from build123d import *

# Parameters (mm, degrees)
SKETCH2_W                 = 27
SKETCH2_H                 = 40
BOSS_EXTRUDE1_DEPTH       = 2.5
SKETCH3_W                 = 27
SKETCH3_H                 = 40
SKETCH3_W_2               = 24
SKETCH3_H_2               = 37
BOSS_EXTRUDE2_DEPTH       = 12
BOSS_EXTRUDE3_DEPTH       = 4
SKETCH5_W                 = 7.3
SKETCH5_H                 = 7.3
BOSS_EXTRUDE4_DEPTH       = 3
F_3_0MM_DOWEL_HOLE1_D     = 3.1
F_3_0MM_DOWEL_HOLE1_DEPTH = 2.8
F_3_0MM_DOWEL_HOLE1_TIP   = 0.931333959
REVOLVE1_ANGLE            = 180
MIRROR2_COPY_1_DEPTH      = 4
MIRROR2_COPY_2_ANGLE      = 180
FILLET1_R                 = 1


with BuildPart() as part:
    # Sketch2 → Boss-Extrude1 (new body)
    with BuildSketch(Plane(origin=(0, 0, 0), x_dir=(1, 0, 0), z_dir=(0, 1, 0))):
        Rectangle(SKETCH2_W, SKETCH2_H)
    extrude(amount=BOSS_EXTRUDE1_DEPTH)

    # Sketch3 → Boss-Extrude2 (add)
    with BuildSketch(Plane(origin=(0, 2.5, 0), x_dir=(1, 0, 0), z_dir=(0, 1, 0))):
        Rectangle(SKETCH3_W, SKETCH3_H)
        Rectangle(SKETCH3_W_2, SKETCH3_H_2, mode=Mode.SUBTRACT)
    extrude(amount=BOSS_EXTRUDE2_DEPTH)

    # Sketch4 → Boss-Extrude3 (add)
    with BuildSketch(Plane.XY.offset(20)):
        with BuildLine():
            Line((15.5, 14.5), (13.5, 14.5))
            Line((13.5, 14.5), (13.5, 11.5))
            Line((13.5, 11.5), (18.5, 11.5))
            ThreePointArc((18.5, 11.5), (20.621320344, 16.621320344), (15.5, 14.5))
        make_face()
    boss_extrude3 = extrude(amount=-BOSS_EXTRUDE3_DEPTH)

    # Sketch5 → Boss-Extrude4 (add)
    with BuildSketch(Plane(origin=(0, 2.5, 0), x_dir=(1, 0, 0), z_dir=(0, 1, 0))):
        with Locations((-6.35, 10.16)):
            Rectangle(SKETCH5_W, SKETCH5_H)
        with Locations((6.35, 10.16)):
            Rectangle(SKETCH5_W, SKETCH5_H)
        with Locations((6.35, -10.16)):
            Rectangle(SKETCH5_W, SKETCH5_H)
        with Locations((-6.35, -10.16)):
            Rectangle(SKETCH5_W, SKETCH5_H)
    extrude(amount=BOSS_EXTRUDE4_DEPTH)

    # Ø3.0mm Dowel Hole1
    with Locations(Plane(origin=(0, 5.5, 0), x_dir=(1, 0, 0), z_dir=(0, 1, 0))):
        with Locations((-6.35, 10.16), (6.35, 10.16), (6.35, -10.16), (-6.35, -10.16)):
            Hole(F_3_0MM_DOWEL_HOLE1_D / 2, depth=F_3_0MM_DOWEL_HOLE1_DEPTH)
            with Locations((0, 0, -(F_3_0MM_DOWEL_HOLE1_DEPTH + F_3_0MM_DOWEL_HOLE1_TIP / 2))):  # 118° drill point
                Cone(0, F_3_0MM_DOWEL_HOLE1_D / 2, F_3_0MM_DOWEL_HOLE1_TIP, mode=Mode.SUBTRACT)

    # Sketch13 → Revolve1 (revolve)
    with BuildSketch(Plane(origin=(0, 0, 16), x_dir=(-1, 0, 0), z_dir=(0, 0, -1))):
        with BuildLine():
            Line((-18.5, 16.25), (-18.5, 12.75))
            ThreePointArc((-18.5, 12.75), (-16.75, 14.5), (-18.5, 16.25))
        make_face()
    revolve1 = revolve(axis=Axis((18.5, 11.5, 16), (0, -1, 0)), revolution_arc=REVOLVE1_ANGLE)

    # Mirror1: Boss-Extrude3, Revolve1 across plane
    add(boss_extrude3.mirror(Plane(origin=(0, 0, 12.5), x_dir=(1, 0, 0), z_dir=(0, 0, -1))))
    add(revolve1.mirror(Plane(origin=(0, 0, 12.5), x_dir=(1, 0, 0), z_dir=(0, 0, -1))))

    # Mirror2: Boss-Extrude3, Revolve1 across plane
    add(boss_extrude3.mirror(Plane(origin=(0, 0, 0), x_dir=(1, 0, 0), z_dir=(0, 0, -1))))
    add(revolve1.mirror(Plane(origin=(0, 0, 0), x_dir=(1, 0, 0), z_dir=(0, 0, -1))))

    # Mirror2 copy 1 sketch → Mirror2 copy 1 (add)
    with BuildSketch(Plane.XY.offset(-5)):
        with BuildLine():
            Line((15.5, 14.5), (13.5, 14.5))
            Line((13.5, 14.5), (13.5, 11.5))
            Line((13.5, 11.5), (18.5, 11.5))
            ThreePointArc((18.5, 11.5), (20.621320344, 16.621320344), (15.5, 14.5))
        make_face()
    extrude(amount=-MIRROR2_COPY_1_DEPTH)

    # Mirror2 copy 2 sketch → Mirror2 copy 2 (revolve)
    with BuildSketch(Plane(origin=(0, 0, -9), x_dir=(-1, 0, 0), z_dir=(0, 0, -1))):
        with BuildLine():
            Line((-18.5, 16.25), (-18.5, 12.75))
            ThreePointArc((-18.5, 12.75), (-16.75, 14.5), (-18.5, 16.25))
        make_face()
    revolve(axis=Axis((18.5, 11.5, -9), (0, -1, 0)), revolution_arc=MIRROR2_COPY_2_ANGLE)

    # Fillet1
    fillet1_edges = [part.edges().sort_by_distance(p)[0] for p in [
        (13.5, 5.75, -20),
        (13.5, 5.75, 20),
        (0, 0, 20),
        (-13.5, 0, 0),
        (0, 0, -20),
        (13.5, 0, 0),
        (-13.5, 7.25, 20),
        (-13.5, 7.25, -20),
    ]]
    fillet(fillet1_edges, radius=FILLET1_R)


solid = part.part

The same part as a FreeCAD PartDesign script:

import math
import FreeCAD as App
import Part
import Sketcher


def edges_at(feature, points):
    """Names of the edges that pass closest to the given points."""
    edges = feature.Shape.Edges
    near = lambda p: min(range(len(edges)), key=lambda i: edges[i].distToShape(Part.Vertex(*p))[0])
    return sorted({f"Edge{near(p) + 1}" for p in points})

doc = App.newDocument("Part")
body = doc.addObject("PartDesign::Body", "Body")

# Sketch on XZ plane
sketch1 = body.newObject("Sketcher::SketchObject", "Sketch")
sketch1.AttachmentSupport = (doc.getObject("XZ_Plane"), [""])
sketch1.MapMode = "FlatFace"
sketch1.addGeometry([
    Part.LineSegment(App.Vector(-14, -20, 0), App.Vector(-14, 20, 0)),
    Part.LineSegment(App.Vector(-14, 20, 0), App.Vector(14, 20, 0)),
    Part.LineSegment(App.Vector(14, 20, 0), App.Vector(14, -20, 0)),
    Part.LineSegment(App.Vector(14, -20, 0), App.Vector(-14, -20, 0)),
], False)
sketch1.addConstraint([
    Sketcher.Constraint("Coincident", 0, 2, 1, 1),
    Sketcher.Constraint("Coincident", 1, 2, 2, 1),
    Sketcher.Constraint("Coincident", 2, 2, 3, 1),
    Sketcher.Constraint("Coincident", 3, 2, 0, 1),
    Sketcher.Constraint("Vertical", 0),
    Sketcher.Constraint("Horizontal", 1),
    Sketcher.Constraint("Vertical", 2),
    Sketcher.Constraint("Horizontal", 3),
    Sketcher.Constraint("Symmetric", 0, 2, 2, 2, -1, 1),
    Sketcher.Constraint("DistanceX", 1, 1, 1, 2, 27.0),
    Sketcher.Constraint("DistanceY", 0, 1, 0, 2, 40.0),
])
pad1 = body.newObject("PartDesign::Pad", "Pad")
pad1.Profile = sketch1
pad1.Length = 2.5
pad1.Reversed = True

# Sketch on XZ plane
sketch2 = body.newObject("Sketcher::SketchObject", "Sketch001")
sketch2.AttachmentSupport = (doc.getObject("XZ_Plane"), [""])
sketch2.MapMode = "FlatFace"
sketch2.AttachmentOffset = App.Placement(App.Vector(0, 0, -2.5), App.Rotation())
sketch2.addGeometry([
    Part.LineSegment(App.Vector(-14, -20, 0), App.Vector(-14, 20, 0)),  # 0
    Part.LineSegment(App.Vector(-14, 20, 0), App.Vector(14, 20, 0)),  # 1
    Part.LineSegment(App.Vector(14, 20, 0), App.Vector(14, -20, 0)),  # 2
    Part.LineSegment(App.Vector(14, -20, 0), App.Vector(-14, -20, 0)),  # 3
    Part.LineSegment(App.Vector(12, 18, 0), App.Vector(-12, 18, 0)),  # 4
    Part.LineSegment(App.Vector(-12, 18, 0), App.Vector(-12, -18, 0)),  # 5
    Part.LineSegment(App.Vector(-12, -18, 0), App.Vector(12, -18, 0)),  # 6
    Part.LineSegment(App.Vector(12, -18, 0), App.Vector(12, 18, 0)),  # 7
], False)
sketch2.addConstraint([
    Sketcher.Constraint("Coincident", 0, 2, 1, 1),
    Sketcher.Constraint("Coincident", 1, 2, 2, 1),
    Sketcher.Constraint("Coincident", 2, 2, 3, 1),
    Sketcher.Constraint("Coincident", 3, 2, 0, 1),
    Sketcher.Constraint("Coincident", 4, 2, 5, 1),
    Sketcher.Constraint("Coincident", 5, 2, 6, 1),
    Sketcher.Constraint("Coincident", 6, 2, 7, 1),
    Sketcher.Constraint("Coincident", 7, 2, 4, 1),
    Sketcher.Constraint("Vertical", 0),
    Sketcher.Constraint("Horizontal", 1),
    Sketcher.Constraint("Vertical", 2),
    Sketcher.Constraint("Horizontal", 3),
    Sketcher.Constraint("Horizontal", 4),
    Sketcher.Constraint("Vertical", 5),
    Sketcher.Constraint("Horizontal", 6),
    Sketcher.Constraint("Vertical", 7),
    Sketcher.Constraint("Symmetric", 0, 2, 2, 2, -1, 1),
    Sketcher.Constraint("Symmetric", 4, 2, 6, 2, -1, 1),
    Sketcher.Constraint("DistanceX", 1, 1, 1, 2, 27.0),
    Sketcher.Constraint("DistanceX", 4, 2, 4, 1, 24.0),
    Sketcher.Constraint("DistanceY", 0, 1, 0, 2, 40.0),
    Sketcher.Constraint("DistanceY", 5, 2, 5, 1, 37.0),
])
pad2 = body.newObject("PartDesign::Pad", "Pad001")
pad2.Profile = sketch2
pad2.Length = 12
pad2.Reversed = True

# Sketch on XY plane
sketch3 = body.newObject("Sketcher::SketchObject", "Sketch002")
sketch3.AttachmentSupport = (doc.getObject("XY_Plane"), [""])
sketch3.MapMode = "FlatFace"
sketch3.AttachmentOffset = App.Placement(App.Vector(0, 0, 20), App.Rotation())
sketch3.addGeometry([
    Part.LineSegment(App.Vector(15.5, 14.5, 0), App.Vector(13.5, 14.5, 0)),
    Part.LineSegment(App.Vector(13.5, 14.5, 0), App.Vector(13.5, 11.5, 0)),
    Part.LineSegment(App.Vector(13.5, 11.5, 0), App.Vector(18.5, 11.5, 0)),
    Part.ArcOfCircle(Part.Circle(App.Vector(18.5, 14.5, 0), App.Vector(0, 0, 1), 3), math.radians(-90), math.radians(180)),
], False)
sketch3.addConstraint([
    Sketcher.Constraint("Coincident", 0, 2, 1, 1),
    Sketcher.Constraint("Coincident", 1, 2, 2, 1),
    Sketcher.Constraint("Tangent", 2, 2, 3, 1),
    Sketcher.Constraint("Coincident", 3, 2, 0, 1),
    Sketcher.Constraint("Horizontal", 0),
    Sketcher.Constraint("Vertical", 1),
    Sketcher.Constraint("Horizontal", 2),
    Sketcher.Constraint("Horizontal", 3, 3, 0, 2),
    Sketcher.Constraint("Radius", 3, 3.0),
    Sketcher.Constraint("DistanceX", 0, 2, 0, 1, 2.0),
    Sketcher.Constraint("DistanceX", -1, 1, 3, 3, 18.5),
    Sketcher.Constraint("DistanceY", -1, 1, 3, 3, 14.5),
])
pad3 = body.newObject("PartDesign::Pad", "Pad002")
pad3.Profile = sketch3
pad3.Length = 4
pad3.Reversed = True

# Sketch on XZ plane
sketch4 = body.newObject("Sketcher::SketchObject", "Sketch003")
sketch4.AttachmentSupport = (doc.getObject("XZ_Plane"), [""])
sketch4.MapMode = "FlatFace"
sketch4.AttachmentOffset = App.Placement(App.Vector(0, 0, -2.5), App.Rotation())
sketch4.addGeometry([
    Part.LineSegment(App.Vector(-10, -14, 0), App.Vector(-10, -7, 0)),  # 0
    Part.LineSegment(App.Vector(-10, -7, 0), App.Vector(-3, -7, 0)),  # 1
    Part.LineSegment(App.Vector(-3, -7, 0), App.Vector(-3, -14, 0)),  # 2
    Part.LineSegment(App.Vector(-3, -14, 0), App.Vector(-10, -14, 0)),  # 3
    Part.LineSegment(App.Vector(3, -14, 0), App.Vector(3, -7, 0)),  # 4
    Part.LineSegment(App.Vector(3, -7, 0), App.Vector(10, -7, 0)),  # 5
    Part.LineSegment(App.Vector(10, -7, 0), App.Vector(10, -14, 0)),  # 6
    Part.LineSegment(App.Vector(10, -14, 0), App.Vector(3, -14, 0)),  # 7
    Part.LineSegment(App.Vector(3, 7, 0), App.Vector(3, 14, 0)),  # 8
    Part.LineSegment(App.Vector(3, 14, 0), App.Vector(10, 14, 0)),  # 9
    Part.LineSegment(App.Vector(10, 14, 0), App.Vector(10, 7, 0)),  # 10
    Part.LineSegment(App.Vector(10, 7, 0), App.Vector(3, 7, 0)),  # 11
    Part.LineSegment(App.Vector(-10, 7, 0), App.Vector(-10, 14, 0)),  # 12
    Part.LineSegment(App.Vector(-10, 14, 0), App.Vector(-3, 14, 0)),  # 13
    Part.LineSegment(App.Vector(-3, 14, 0), App.Vector(-3, 7, 0)),  # 14
    Part.LineSegment(App.Vector(-3, 7, 0), App.Vector(-10, 7, 0)),  # 15
], False)
sketch4.addConstraint([
    Sketcher.Constraint("Coincident", 0, 2, 1, 1),
    Sketcher.Constraint("Coincident", 1, 2, 2, 1),
    Sketcher.Constraint("Coincident", 2, 2, 3, 1),
    Sketcher.Constraint("Coincident", 3, 2, 0, 1),
    Sketcher.Constraint("Coincident", 4, 2, 5, 1),
    Sketcher.Constraint("Coincident", 5, 2, 6, 1),
    Sketcher.Constraint("Coincident", 6, 2, 7, 1),
    Sketcher.Constraint("Coincident", 7, 2, 4, 1),
    Sketcher.Constraint("Coincident", 8, 2, 9, 1),
    Sketcher.Constraint("Coincident", 9, 2, 10, 1),
    Sketcher.Constraint("Coincident", 10, 2, 11, 1),
    Sketcher.Constraint("Coincident", 11, 2, 8, 1),
    Sketcher.Constraint("Coincident", 12, 2, 13, 1),
    Sketcher.Constraint("Coincident", 13, 2, 14, 1),
    Sketcher.Constraint("Coincident", 14, 2, 15, 1),
    Sketcher.Constraint("Coincident", 15, 2, 12, 1),
    Sketcher.Constraint("Vertical", 0),
    Sketcher.Constraint("Horizontal", 1),
    Sketcher.Constraint("Vertical", 2),
    Sketcher.Constraint("Horizontal", 3),
    Sketcher.Constraint("Vertical", 4),
    Sketcher.Constraint("Horizontal", 5),
    Sketcher.Constraint("Vertical", 6),
    Sketcher.Constraint("Horizontal", 7),
    Sketcher.Constraint("Vertical", 8),
    Sketcher.Constraint("Horizontal", 9),
    Sketcher.Constraint("Vertical", 10),
    Sketcher.Constraint("Horizontal", 11),
    Sketcher.Constraint("Vertical", 12),
    Sketcher.Constraint("Horizontal", 13),
    Sketcher.Constraint("Vertical", 14),
    Sketcher.Constraint("Horizontal", 15),
    Sketcher.Constraint("Symmetric", 2, 2, 8, 2, -1, 1),
    Sketcher.Constraint("Symmetric", 0, 2, 10, 2, -1, 1),
    Sketcher.Constraint("Symmetric", 6, 2, 12, 2, -1, 1),
    Sketcher.Constraint("Symmetric", 4, 2, 14, 2, -1, 1),
    Sketcher.Constraint("Symmetric", 1, 2, 4, 2, -2),
    Sketcher.Constraint("Symmetric", 3, 2, 6, 2, -2),
    Sketcher.Constraint("Equal", 15, 0),
    Sketcher.Constraint("DistanceX", 1, 1, 1, 2, 7.3),
    Sketcher.Constraint("DistanceX", 0, 2, -1, 1, 10.0),
    Sketcher.Constraint("DistanceY", 0, 2, -1, 1, 6.51),
])
pad4 = body.newObject("PartDesign::Pad", "Pad003")
pad4.Profile = sketch4
pad4.Length = 3
pad4.Reversed = True

# Sketch on XZ plane
sketch5 = body.newObject("Sketcher::SketchObject", "Sketch004")
sketch5.AttachmentSupport = (doc.getObject("XZ_Plane"), [""])
sketch5.MapMode = "FlatFace"
sketch5.AttachmentOffset = App.Placement(App.Vector(0, 0, -5.5), App.Rotation())
sketch5.addGeometry([
    Part.Circle(App.Vector(-6.3, -10.2, 0), App.Vector(0, 0, 1), 1.6),
    Part.Circle(App.Vector(6.3, -10.2, 0), App.Vector(0, 0, 1), 1.6),
    Part.Circle(App.Vector(6.3, 10.2, 0), App.Vector(0, 0, 1), 1.6),
    Part.Circle(App.Vector(-6.3, 10.2, 0), App.Vector(0, 0, 1), 1.6),
], False)
sketch5.addConstraint([
    Sketcher.Constraint("Equal", 0, 1),
    Sketcher.Constraint("Equal", 1, 2),
    Sketcher.Constraint("Equal", 2, 3),
    Sketcher.Constraint("Symmetric", 0, 3, 2, 3, -1, 1),
    Sketcher.Constraint("Symmetric", 1, 3, 3, 3, -1, 1),
    Sketcher.Constraint("Symmetric", 0, 3, 1, 3, -2),
    Sketcher.Constraint("Diameter", 0, 3.1),
    Sketcher.Constraint("DistanceX", 0, 3, 1, 3, 12.7),
    Sketcher.Constraint("DistanceY", 0, 3, -1, 1, 10.16),
])
doc.recompute()
hole = body.newObject("PartDesign::Hole", "Hole")
hole.Profile = sketch5
hole.ThreadType = "None"
hole.Diameter = 3.1
hole.DepthType = "Dimension"
hole.Depth = 2.8
hole.DrillPoint = "Angled"
hole.DrillPointAngle = 118
hole.Reversed = True

# Sketch on XY plane
sketch6 = body.newObject("Sketcher::SketchObject", "Sketch005")
sketch6.AttachmentSupport = (doc.getObject("XY_Plane"), [""])
sketch6.MapMode = "FlatFace"
sketch6.AttachmentOffset = App.Placement(App.Vector(0, 0, 16), App.Rotation())
sketch6.addGeometry([
    Part.LineSegment(App.Vector(18.5, 16.2, 0), App.Vector(18.5, 12.8, 0)),
    Part.ArcOfCircle(Part.Circle(App.Vector(18.5, 14.5, 0), App.Vector(0, 0, 1), 1.8), math.radians(90), math.radians(270)),
], False)
sketch6.addGeometry(Part.LineSegment(App.Vector(18.5, 16.2, 0), App.Vector(18.5, 12.8, 0)), True)  # axis
sketch6.addConstraint([
    Sketcher.Constraint("Coincident", 0, 1, 1, 1),
    Sketcher.Constraint("Coincident", 1, 2, 0, 2),
    Sketcher.Constraint("Vertical", 0),
    Sketcher.Constraint("Vertical", 2),
    Sketcher.Constraint("Coincident", 2, 1, 0, 1),
    Sketcher.Constraint("Vertical", 1, 3, 0, 1),
    Sketcher.Constraint("Equal", 0, 2),
    Sketcher.Constraint("Radius", 1, 1.75),
    Sketcher.Constraint("DistanceX", -1, 1, 1, 3, 18.5),
    Sketcher.Constraint("DistanceY", -1, 1, 1, 3, 14.5),
])
revolution = body.newObject("PartDesign::Revolution", "Revolution")
revolution.Profile = sketch6
revolution.ReferenceAxis = (sketch6, ["Axis0"])
revolution.Angle = 180
doc.recompute()

datumplane = body.newObject("PartDesign::Plane", "DatumPlane")
datumplane.AttachmentSupport = (doc.getObject("XY_Plane"), [""])
datumplane.MapMode = "FlatFace"
datumplane.AttachmentOffset = App.Placement(App.Vector(0, 0, 12.5), App.Rotation())
mirrored = body.newObject("PartDesign::Mirrored", "Mirrored")
mirrored.Originals = [pad3, revolution]
mirrored.MirrorPlane = (datumplane, [""])
body.Tip = mirrored
doc.recompute()

mirrored2 = body.newObject("PartDesign::Mirrored", "Mirrored001")
mirrored2.Originals = [pad3, revolution]
mirrored2.MirrorPlane = (doc.getObject("XY_Plane"), [""])
body.Tip = mirrored2

# Sketch on XY plane
sketch7 = body.newObject("Sketcher::SketchObject", "Sketch006")
sketch7.AttachmentSupport = (doc.getObject("XY_Plane"), [""])
sketch7.MapMode = "FlatFace"
sketch7.AttachmentOffset = App.Placement(App.Vector(0, 0, -5), App.Rotation())
sketch7.addGeometry([
    Part.LineSegment(App.Vector(15.5, 14.5, 0), App.Vector(13.5, 14.5, 0)),
    Part.LineSegment(App.Vector(13.5, 14.5, 0), App.Vector(13.5, 11.5, 0)),
    Part.LineSegment(App.Vector(13.5, 11.5, 0), App.Vector(18.5, 11.5, 0)),
    Part.ArcOfCircle(Part.Circle(App.Vector(18.5, 14.5, 0), App.Vector(0, 0, 1), 3), math.radians(-90), math.radians(180)),
], False)
sketch7.addConstraint([
    Sketcher.Constraint("Coincident", 0, 2, 1, 1),
    Sketcher.Constraint("Coincident", 1, 2, 2, 1),
    Sketcher.Constraint("Tangent", 2, 2, 3, 1),
    Sketcher.Constraint("Coincident", 3, 2, 0, 1),
    Sketcher.Constraint("Horizontal", 0),
    Sketcher.Constraint("Vertical", 1),
    Sketcher.Constraint("Horizontal", 2),
    Sketcher.Constraint("Horizontal", 3, 3, 0, 2),
    Sketcher.Constraint("Radius", 3, 3.0),
    Sketcher.Constraint("DistanceX", 0, 2, 0, 1, 2.0),
    Sketcher.Constraint("DistanceX", -1, 1, 3, 3, 18.5),
    Sketcher.Constraint("DistanceY", -1, 1, 3, 3, 14.5),
])
pad5 = body.newObject("PartDesign::Pad", "Pad004")
pad5.Profile = sketch7
pad5.Length = 4
pad5.Reversed = True

# Sketch on XY plane
sketch8 = body.newObject("Sketcher::SketchObject", "Sketch007")
sketch8.AttachmentSupport = (doc.getObject("XY_Plane"), [""])
sketch8.MapMode = "FlatFace"
sketch8.AttachmentOffset = App.Placement(App.Vector(0, 0, -9), App.Rotation())
sketch8.addGeometry([
    Part.LineSegment(App.Vector(18.5, 16.2, 0), App.Vector(18.5, 12.8, 0)),
    Part.ArcOfCircle(Part.Circle(App.Vector(18.5, 14.5, 0), App.Vector(0, 0, 1), 1.8), math.radians(90), math.radians(270)),
], False)
sketch8.addGeometry(Part.LineSegment(App.Vector(18.5, 16.2, 0), App.Vector(18.5, 12.8, 0)), True)  # axis
sketch8.addConstraint([
    Sketcher.Constraint("Coincident", 0, 1, 1, 1),
    Sketcher.Constraint("Coincident", 1, 2, 0, 2),
    Sketcher.Constraint("Vertical", 0),
    Sketcher.Constraint("Vertical", 2),
    Sketcher.Constraint("Coincident", 2, 1, 0, 1),
    Sketcher.Constraint("Vertical", 1, 3, 0, 1),
    Sketcher.Constraint("Equal", 0, 2),
    Sketcher.Constraint("Radius", 1, 1.75),
    Sketcher.Constraint("DistanceX", -1, 1, 1, 3, 18.5),
    Sketcher.Constraint("DistanceY", -1, 1, 1, 3, 14.5),
])
revolution2 = body.newObject("PartDesign::Revolution", "Revolution001")
revolution2.Profile = sketch8
revolution2.ReferenceAxis = (sketch8, ["Axis0"])
revolution2.Angle = 180
doc.recompute()

fillet = body.newObject("PartDesign::Fillet", "Fillet")
fillet.Base = (revolution2, edges_at(revolution2, [
    (13.5, 5.75, -20),
    (13.5, 5.75, 20),
    (0, 0, 20),
    (-13.5, 0, 0),
    (0, 0, -20),
    (13.5, 0, 0),
    (-13.5, 7.25, 20),
    (-13.5, 7.25, -20),
]))
fillet.Radius = 1

doc.recompute()
